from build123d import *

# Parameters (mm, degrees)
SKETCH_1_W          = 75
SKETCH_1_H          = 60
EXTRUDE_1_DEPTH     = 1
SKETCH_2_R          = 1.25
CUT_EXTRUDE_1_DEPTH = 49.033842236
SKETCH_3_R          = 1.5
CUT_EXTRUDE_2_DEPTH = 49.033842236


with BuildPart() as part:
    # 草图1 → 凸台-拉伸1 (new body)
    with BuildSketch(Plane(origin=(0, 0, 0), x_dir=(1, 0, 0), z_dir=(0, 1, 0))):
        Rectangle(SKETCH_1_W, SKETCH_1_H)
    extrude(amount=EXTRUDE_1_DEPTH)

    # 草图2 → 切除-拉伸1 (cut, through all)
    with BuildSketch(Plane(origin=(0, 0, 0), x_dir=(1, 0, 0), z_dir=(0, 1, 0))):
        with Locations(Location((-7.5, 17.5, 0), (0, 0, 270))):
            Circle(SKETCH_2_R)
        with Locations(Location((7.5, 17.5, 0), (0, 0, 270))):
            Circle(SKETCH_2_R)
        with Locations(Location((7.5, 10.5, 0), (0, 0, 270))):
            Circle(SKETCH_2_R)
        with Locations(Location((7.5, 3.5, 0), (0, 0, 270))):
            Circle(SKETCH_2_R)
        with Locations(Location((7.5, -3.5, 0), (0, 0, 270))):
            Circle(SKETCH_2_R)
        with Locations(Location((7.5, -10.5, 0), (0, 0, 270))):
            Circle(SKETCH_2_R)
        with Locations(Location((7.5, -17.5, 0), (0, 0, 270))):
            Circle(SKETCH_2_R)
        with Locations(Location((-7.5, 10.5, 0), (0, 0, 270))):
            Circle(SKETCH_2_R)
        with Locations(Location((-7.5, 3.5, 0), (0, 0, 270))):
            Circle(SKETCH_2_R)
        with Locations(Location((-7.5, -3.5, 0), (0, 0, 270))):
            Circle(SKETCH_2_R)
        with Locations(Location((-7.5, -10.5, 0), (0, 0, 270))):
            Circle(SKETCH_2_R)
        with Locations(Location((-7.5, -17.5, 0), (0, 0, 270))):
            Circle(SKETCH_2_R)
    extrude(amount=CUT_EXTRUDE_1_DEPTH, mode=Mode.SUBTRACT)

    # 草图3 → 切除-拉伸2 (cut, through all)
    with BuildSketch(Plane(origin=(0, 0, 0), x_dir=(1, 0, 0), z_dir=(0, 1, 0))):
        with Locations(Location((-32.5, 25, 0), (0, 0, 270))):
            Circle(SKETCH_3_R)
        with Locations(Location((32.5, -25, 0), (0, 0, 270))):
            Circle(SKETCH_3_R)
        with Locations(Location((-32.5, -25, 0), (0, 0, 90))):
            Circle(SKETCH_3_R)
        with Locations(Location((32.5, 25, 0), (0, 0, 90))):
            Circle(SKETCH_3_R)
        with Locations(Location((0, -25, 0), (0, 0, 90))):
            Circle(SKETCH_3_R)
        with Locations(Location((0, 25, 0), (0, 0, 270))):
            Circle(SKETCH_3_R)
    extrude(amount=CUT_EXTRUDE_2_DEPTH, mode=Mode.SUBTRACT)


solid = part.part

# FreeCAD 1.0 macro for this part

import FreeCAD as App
import Part
import Sketcher
from FreeCAD import Vector
Q = App.Units.Quantity

doc = App.newDocument("Part")
params = doc.addObject("Spreadsheet::Sheet", "Params")
for row, (alias, value) in enumerate([
    ("sketch1_width", "75 mm"),
    ("sketch1_height", "60 mm"),
    ("pad1_length", "1 mm"),
    ("sketch2_diameter", "2.5 mm"),
    ("sketch3_diameter", "3 mm"),
], start=1):
    params.set(f"A{row}", alias)
    params.set(f"B{row}", "=" + value)
    params.setAlias(f"B{row}", alias)

body = doc.addObject("PartDesign::Body", "Body")

sketch1 = body.newObject("Sketcher::SketchObject", "Sketch")
sketch1.AttachmentSupport = (doc.getObject("XZ_Plane"), [""])
sketch1.MapMode = "FlatFace"
sketch1.addGeometry(Part.LineSegment(Vector(-38, -30, 0), Vector(-38, 30, 0)), False)
sketch1.addGeometry(Part.LineSegment(Vector(-38, 30, 0), Vector(38, 30, 0)), False)
sketch1.addGeometry(Part.LineSegment(Vector(38, 30, 0), Vector(38, -30, 0)), False)
sketch1.addGeometry(Part.LineSegment(Vector(38, -30, 0), Vector(-38, -30, 0)), False)
sketch1.addConstraint(Sketcher.Constraint("Coincident", 0, 2, 1, 1))
sketch1.addConstraint(Sketcher.Constraint("Coincident", 1, 2, 2, 1))
sketch1.addConstraint(Sketcher.Constraint("Coincident", 2, 2, 3, 1))
sketch1.addConstraint(Sketcher.Constraint("Coincident", 3, 2, 0, 1))
sketch1.addConstraint(Sketcher.Constraint("Vertical", 0))
sketch1.addConstraint(Sketcher.Constraint("Horizontal", 1))
sketch1.addConstraint(Sketcher.Constraint("Vertical", 2))
sketch1.addConstraint(Sketcher.Constraint("Horizontal", 3))
sketch1.addConstraint(Sketcher.Constraint("Symmetric", 0, 2, 2, 2, -1, 1))
sketch1.addConstraint(Sketcher.Constraint("DistanceX", 1, 1, 1, 2, Q("75 mm")))
sketch1.addConstraint(Sketcher.Constraint("DistanceY", 0, 1, 0, 2, Q("60 mm")))
sketch1.setExpression("Constraints[9]", "Params.sketch1_width")
sketch1.setExpression("Constraints[10]", "Params.sketch1_height")
pad1 = body.newObject("PartDesign::Pad", "Pad")
pad1.Profile = sketch1
pad1.setExpression("Length", "Params.pad1_length")
pad1.Reversed = True

sketch2 = body.newObject("Sketcher::SketchObject", "Sketch001")
sketch2.AttachmentSupport = (doc.getObject("XZ_Plane"), [""])
sketch2.MapMode = "FlatFace"
sketch2.addGeometry(Part.Circle(Vector(-7.5, -17.5, 0), Vector(0, 0, 1), 1.2), False)
sketch2.addGeometry(Part.Circle(Vector(7.5, -17.5, 0), Vector(0, 0, 1), 1.2), False)
sketch2.addGeometry(Part.Circle(Vector(7.5, -10.5, 0), Vector(0, 0, 1), 1.2), False)
sketch2.addGeometry(Part.Circle(Vector(7.5, -3.5, 0), Vector(0, 0, 1), 1.2), False)
sketch2.addGeometry(Part.Circle(Vector(7.5, 3.5, 0), Vector(0, 0, 1), 1.2), False)
sketch2.addGeometry(Part.Circle(Vector(7.5, 10.5, 0), Vector(0, 0, 1), 1.2), False)
sketch2.addGeometry(Part.Circle(Vector(7.5, 17.5, 0), Vector(0, 0, 1), 1.2), False)
sketch2.addGeometry(Part.Circle(Vector(-7.5, -10.5, 0), Vector(0, 0, 1), 1.2), False)
sketch2.addGeometry(Part.Circle(Vector(-7.5, -3.5, 0), Vector(0, 0, 1), 1.2), False)
sketch2.addGeometry(Part.Circle(Vector(-7.5, 3.5, 0), Vector(0, 0, 1), 1.2), False)
sketch2.addGeometry(Part.Circle(Vector(-7.5, 10.5, 0), Vector(0, 0, 1), 1.2), False)
sketch2.addGeometry(Part.Circle(Vector(-7.5, 17.5, 0), Vector(0, 0, 1), 1.2), False)
sketch2.addConstraint(Sketcher.Constraint("Equal", 0, 1))
sketch2.addConstraint(Sketcher.Constraint("Equal", 1, 2))
sketch2.addConstraint(Sketcher.Constraint("Equal", 2, 3))
sketch2.addConstraint(Sketcher.Constraint("Equal", 3, 4))
sketch2.addConstraint(Sketcher.Constraint("Equal", 4, 5))
sketch2.addConstraint(Sketcher.Constraint("Equal", 5, 6))
sketch2.addConstraint(Sketcher.Constraint("Equal", 6, 7))
sketch2.addConstraint(Sketcher.Constraint("Equal", 7, 8))
sketch2.addConstraint(Sketcher.Constraint("Equal", 8, 9))
sketch2.addConstraint(Sketcher.Constraint("Equal", 9, 10))
sketch2.addConstraint(Sketcher.Constraint("Equal", 10, 11))
sketch2.addConstraint(Sketcher.Constraint("Symmetric", 0, 3, 6, 3, -1, 1))
sketch2.addConstraint(Sketcher.Constraint("Symmetric", 5, 3, 7, 3, -1, 1))
sketch2.addConstraint(Sketcher.Constraint("Symmetric", 4, 3, 8, 3, -1, 1))
sketch2.addConstraint(Sketcher.Constraint("Symmetric", 3, 3, 9, 3, -1, 1))
sketch2.addConstraint(Sketcher.Constraint("Symmetric", 2, 3, 10, 3, -1, 1))
sketch2.addConstraint(Sketcher.Constraint("Symmetric", 1, 3, 11, 3, -1, 1))
sketch2.addConstraint(Sketcher.Constraint("Symmetric", 0, 3, 1, 3, -2))
sketch2.addConstraint(Sketcher.Constraint("Symmetric", 2, 3, 7, 3, -2))
sketch2.addConstraint(Sketcher.Constraint("Symmetric", 3, 3, 8, 3, -2))
sketch2.addConstraint(Sketcher.Constraint("Vertical", 1, 3, 2, 3))
sketch2.addConstraint(Sketcher.Constraint("Vertical", 2, 3, 3, 3))
sketch2.addConstraint(Sketcher.Constraint("Diameter", 0, Q("2.5 mm")))
sketch2.addConstraint(Sketcher.Constraint("DistanceX", 0, 3, 1, 3, Q("15 mm")))
sketch2.addConstraint(Sketcher.Constraint("DistanceY", 1, 3, 2, 3, Q("7 mm")))
sketch2.addConstraint(Sketcher.Constraint("DistanceY", 2, 3, 3, 3, Q("7 mm")))
sketch2.addConstraint(Sketcher.Constraint("DistanceY", 3, 3, 4, 3, Q("7 mm")))
sketch2.setExpression("Constraints[22]", "Params.sketch2_diameter")
pocket1 = body.newObject("PartDesign::Pocket", "Pocket")
pocket1.Profile = sketch2
pocket1.Type = "ThroughAll"

sketch3 = body.newObject("Sketcher::SketchObject", "Sketch002")
sketch3.AttachmentSupport = (doc.getObject("XZ_Plane"), [""])
sketch3.MapMode = "FlatFace"
sketch3.addGeometry(Part.Circle(Vector(-32.5, -25, 0), Vector(0, 0, 1), 1.5), False)
sketch3.addGeometry(Part.Circle(Vector(32.5, 25, 0), Vector(0, 0, 1), 1.5), False)
sketch3.addGeometry(Part.Circle(Vector(-32.5, 25, 0), Vector(0, 0, 1), 1.5), False)
sketch3.addGeometry(Part.Circle(Vector(32.5, -25, 0), Vector(0, 0, 1), 1.5), False)
sketch3.addGeometry(Part.Circle(Vector(0, 25, 0), Vector(0, 0, 1), 1.5), False)
sketch3.addGeometry(Part.Circle(Vector(0, -25, 0), Vector(0, 0, 1), 1.5), False)
sketch3.addConstraint(Sketcher.Constraint("Equal", 0, 1))
sketch3.addConstraint(Sketcher.Constraint("Equal", 1, 2))
sketch3.addConstraint(Sketcher.Constraint("Equal", 2, 3))
sketch3.addConstraint(Sketcher.Constraint("Equal", 3, 4))
sketch3.addConstraint(Sketcher.Constraint("Equal", 4, 5))
sketch3.addConstraint(Sketcher.Constraint("Symmetric", 0, 3, 1, 3, -1, 1))
sketch3.addConstraint(Sketcher.Constraint("Symmetric", 2, 3, 3, 3, -1, 1))
sketch3.addConstraint(Sketcher.Constraint("Symmetric", 4, 3, 5, 3, -1, 1))
sketch3.addConstraint(Sketcher.Constraint("Symmetric", 1, 3, 2, 3, -2))
sketch3.addConstraint(Sketcher.Constraint("PointOnObject", 4, 3, -2))
sketch3.addConstraint(Sketcher.Constraint("Horizontal", 2, 3, 4, 3))
sketch3.addConstraint(Sketcher.Constraint("Diameter", 0, Q("3 mm")))
sketch3.addConstraint(Sketcher.Constraint("DistanceY", 0, 3, -1, 1, Q("25 mm")))
sketch3.addConstraint(Sketcher.Constraint("DistanceX", 0, 3, 1, 3, Q("65 mm")))
sketch3.setExpression("Constraints[11]", "Params.sketch3_diameter")
pocket2 = body.newObject("PartDesign::Pocket", "Pocket001")
pocket2.Profile = sketch3
pocket2.Type = "ThroughAll"

doc.recompute()
